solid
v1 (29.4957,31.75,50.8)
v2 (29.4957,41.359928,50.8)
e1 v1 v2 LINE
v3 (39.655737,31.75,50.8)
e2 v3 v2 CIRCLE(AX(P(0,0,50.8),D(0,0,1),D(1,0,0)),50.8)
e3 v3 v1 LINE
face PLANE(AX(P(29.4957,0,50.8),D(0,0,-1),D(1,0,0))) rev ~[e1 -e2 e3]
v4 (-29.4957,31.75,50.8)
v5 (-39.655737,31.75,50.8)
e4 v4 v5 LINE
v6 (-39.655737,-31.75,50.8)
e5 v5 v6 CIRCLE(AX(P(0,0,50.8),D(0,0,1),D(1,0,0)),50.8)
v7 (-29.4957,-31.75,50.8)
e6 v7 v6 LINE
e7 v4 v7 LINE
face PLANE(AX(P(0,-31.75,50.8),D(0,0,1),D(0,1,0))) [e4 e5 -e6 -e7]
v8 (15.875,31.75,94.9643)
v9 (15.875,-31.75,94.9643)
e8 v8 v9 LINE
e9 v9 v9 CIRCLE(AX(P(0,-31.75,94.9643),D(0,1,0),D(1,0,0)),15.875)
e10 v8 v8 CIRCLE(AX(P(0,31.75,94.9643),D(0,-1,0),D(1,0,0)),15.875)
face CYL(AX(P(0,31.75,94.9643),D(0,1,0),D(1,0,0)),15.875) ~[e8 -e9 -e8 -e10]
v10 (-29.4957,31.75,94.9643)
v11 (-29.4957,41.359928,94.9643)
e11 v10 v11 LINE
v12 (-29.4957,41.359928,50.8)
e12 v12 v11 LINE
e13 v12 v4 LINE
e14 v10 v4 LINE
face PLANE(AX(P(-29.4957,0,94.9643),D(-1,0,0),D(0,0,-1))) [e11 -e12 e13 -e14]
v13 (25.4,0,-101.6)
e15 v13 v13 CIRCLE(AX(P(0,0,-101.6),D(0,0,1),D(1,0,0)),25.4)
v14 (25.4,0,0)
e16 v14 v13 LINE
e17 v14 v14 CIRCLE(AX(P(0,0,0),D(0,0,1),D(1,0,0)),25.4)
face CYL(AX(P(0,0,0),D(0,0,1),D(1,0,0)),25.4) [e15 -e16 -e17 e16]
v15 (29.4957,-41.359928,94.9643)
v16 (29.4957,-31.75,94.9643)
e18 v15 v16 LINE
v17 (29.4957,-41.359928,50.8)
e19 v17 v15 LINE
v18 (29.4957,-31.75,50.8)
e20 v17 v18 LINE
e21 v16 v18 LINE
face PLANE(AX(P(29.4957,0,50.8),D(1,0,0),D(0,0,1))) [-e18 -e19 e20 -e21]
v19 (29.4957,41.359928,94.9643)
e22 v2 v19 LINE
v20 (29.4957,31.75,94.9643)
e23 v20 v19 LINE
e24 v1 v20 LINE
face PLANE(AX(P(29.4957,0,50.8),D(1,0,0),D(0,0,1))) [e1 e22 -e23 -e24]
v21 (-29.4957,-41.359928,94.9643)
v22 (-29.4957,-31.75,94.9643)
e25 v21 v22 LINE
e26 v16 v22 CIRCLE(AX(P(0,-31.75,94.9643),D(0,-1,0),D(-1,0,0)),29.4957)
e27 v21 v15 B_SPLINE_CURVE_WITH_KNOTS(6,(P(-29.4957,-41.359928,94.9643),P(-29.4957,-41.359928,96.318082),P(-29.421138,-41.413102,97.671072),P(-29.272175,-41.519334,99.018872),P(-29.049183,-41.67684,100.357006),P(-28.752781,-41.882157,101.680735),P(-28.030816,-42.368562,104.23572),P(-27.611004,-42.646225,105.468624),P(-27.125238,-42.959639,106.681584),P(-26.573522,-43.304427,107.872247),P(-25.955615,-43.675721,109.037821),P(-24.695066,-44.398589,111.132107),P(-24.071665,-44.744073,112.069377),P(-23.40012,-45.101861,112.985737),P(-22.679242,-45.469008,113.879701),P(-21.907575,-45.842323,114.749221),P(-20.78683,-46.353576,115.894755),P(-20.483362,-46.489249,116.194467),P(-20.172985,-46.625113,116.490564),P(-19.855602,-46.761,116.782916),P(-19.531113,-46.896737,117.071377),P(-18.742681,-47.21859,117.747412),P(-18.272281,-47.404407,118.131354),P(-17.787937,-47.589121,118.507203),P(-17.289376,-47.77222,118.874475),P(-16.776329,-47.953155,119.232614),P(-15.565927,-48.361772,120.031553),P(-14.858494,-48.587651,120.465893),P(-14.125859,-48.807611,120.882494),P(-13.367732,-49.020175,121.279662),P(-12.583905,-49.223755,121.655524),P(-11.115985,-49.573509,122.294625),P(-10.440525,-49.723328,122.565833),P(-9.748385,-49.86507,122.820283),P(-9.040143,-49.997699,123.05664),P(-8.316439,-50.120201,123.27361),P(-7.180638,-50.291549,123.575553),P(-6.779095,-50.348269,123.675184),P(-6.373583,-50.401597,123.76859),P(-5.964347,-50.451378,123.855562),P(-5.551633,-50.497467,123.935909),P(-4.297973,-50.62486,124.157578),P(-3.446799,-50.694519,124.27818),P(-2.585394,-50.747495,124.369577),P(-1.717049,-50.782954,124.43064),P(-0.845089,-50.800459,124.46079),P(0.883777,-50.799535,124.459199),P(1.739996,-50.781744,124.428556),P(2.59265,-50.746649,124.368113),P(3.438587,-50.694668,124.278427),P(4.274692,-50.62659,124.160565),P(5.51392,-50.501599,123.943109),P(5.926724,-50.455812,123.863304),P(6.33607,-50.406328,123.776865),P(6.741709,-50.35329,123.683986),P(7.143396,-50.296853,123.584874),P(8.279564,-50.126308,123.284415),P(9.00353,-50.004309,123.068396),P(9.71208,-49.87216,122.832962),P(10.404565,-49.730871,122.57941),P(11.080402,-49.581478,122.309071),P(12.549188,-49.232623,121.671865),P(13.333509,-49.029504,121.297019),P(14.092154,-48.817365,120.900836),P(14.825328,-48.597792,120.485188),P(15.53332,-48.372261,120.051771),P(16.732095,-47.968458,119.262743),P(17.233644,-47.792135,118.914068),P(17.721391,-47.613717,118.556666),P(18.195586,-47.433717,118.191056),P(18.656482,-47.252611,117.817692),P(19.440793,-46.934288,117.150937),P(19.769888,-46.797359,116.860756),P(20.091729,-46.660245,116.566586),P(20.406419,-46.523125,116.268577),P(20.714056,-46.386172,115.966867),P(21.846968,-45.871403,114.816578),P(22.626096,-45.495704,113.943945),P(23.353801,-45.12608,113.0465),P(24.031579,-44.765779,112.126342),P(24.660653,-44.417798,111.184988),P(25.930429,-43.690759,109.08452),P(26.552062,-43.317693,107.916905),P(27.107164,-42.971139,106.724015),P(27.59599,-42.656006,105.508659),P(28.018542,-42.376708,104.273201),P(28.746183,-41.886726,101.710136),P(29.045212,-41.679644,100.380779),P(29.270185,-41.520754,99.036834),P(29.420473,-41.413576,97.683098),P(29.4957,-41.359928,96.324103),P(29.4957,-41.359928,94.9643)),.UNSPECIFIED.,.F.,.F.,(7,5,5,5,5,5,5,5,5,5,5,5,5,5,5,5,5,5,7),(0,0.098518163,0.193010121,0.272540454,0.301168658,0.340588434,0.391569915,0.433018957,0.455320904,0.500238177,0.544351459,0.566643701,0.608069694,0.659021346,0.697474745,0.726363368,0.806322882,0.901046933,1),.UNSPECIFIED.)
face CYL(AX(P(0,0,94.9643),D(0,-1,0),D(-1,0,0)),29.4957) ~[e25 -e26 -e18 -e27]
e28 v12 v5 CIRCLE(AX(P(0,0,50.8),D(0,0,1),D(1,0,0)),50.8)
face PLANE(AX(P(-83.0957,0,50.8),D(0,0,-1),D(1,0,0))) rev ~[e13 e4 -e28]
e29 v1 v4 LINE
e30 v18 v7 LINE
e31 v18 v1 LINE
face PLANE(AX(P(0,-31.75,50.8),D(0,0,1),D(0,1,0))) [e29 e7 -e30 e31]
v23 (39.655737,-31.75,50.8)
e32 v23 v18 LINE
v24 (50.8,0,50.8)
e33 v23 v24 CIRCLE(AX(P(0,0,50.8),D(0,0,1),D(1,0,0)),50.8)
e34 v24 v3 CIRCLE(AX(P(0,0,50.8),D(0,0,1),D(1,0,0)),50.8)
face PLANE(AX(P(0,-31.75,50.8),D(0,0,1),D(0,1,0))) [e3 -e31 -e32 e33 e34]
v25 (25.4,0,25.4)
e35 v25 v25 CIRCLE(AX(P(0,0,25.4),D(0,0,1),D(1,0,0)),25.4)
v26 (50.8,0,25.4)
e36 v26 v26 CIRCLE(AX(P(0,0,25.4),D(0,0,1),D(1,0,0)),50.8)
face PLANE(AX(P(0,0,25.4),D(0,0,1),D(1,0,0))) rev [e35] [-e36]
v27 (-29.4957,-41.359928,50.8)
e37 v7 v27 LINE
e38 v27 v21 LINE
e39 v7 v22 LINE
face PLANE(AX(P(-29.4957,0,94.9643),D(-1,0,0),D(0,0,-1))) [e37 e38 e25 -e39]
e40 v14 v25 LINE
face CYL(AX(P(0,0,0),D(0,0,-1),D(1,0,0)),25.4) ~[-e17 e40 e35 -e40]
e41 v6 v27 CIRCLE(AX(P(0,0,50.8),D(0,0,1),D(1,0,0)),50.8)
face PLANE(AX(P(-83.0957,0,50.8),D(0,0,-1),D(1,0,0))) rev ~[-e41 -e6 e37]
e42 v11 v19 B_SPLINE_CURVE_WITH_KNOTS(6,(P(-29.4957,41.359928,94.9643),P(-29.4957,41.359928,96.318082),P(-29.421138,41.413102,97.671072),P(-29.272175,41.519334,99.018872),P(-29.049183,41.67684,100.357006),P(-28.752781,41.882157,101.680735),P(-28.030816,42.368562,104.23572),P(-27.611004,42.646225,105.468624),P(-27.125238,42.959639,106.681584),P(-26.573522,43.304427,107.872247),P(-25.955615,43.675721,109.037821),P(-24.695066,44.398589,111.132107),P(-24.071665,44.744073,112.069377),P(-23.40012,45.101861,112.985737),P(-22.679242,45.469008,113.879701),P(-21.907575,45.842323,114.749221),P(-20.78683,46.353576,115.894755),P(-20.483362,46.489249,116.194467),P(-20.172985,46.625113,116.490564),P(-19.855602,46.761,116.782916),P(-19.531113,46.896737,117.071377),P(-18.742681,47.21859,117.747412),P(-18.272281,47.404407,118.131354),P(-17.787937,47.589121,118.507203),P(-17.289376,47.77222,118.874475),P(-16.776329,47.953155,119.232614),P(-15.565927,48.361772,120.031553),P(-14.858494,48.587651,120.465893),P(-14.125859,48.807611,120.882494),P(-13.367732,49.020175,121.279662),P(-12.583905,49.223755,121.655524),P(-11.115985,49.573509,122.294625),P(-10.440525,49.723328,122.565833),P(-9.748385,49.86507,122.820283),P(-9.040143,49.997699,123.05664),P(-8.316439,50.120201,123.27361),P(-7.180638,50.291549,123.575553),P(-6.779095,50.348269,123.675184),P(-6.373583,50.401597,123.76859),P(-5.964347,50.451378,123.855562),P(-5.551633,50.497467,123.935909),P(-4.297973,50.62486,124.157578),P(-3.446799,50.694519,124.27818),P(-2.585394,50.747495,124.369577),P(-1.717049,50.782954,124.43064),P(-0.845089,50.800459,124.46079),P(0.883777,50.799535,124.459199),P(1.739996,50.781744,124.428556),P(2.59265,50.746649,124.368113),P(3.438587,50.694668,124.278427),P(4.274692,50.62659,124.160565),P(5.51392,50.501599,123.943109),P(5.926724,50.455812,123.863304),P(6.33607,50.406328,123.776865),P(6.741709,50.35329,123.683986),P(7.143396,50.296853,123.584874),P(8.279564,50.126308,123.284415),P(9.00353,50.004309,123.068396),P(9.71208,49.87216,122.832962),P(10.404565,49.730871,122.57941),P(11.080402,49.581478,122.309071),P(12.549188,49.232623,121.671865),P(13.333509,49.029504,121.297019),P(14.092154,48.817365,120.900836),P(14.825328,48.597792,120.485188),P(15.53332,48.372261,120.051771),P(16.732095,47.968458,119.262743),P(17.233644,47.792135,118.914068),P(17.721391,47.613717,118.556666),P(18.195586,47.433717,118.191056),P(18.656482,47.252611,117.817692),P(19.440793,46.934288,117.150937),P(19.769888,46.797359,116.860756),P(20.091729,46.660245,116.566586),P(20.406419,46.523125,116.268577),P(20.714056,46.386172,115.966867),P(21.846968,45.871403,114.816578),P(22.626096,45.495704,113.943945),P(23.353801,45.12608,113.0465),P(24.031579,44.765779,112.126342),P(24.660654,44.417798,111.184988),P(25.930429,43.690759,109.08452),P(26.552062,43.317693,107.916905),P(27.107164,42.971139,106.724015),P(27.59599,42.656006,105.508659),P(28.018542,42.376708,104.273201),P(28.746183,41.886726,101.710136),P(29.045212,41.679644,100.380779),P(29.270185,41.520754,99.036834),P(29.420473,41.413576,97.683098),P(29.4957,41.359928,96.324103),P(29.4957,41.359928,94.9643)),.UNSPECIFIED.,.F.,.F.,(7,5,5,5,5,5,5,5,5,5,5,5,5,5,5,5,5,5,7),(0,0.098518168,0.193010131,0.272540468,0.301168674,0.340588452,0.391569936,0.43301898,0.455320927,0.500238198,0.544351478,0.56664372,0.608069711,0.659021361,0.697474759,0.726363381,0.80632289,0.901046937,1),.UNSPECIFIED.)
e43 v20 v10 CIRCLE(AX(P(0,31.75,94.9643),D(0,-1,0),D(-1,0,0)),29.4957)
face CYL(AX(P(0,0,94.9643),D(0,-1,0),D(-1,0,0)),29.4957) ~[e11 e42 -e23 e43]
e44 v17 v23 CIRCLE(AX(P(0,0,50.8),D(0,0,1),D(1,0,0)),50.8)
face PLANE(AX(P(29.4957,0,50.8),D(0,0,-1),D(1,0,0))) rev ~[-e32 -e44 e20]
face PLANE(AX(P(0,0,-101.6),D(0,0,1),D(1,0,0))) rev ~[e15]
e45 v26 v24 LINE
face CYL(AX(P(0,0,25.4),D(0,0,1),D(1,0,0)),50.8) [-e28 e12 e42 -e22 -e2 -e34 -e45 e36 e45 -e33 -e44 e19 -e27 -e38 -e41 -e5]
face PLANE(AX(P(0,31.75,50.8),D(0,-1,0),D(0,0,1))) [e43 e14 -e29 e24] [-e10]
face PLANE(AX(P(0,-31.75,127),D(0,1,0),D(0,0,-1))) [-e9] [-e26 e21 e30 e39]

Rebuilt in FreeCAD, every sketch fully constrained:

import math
import FreeCAD as App
import Part
import Sketcher
Q = App.Units.Quantity


def add_polygon(sketch, points):
    """Adds a closed chain of lines whose ends are joined by coincident constraints."""
    first, n = sketch.GeometryCount, len(points)
    for a, b in zip(points, points[1:] + points[:1]):
        sketch.addGeometry(Part.LineSegment(App.Vector(*a, 0), App.Vector(*b, 0)), False)
    for i in range(n):
        sketch.addConstraint(Sketcher.Constraint("Coincident", first + i, 2, first + (i + 1) % n, 1))

doc = App.newDocument("Part")
body = doc.addObject("PartDesign::Body", "Body")

# Sketch on XY plane
sketch1 = doc.addObject("Sketcher::SketchObject", "Sketch")
body.addObject(sketch1)
sketch1.AttachmentSupport = (doc.XY_Plane, [""])
sketch1.MapMode = "FlatFace"
sketch1.addGeometry(Part.Circle(App.Vector(0, 0, 0), App.Vector(0, 0, 1), 25.4), False)
sketch1.addConstraint(Sketcher.Constraint("Coincident", 0, 3, -1, 1))
sketch1.addConstraint(Sketcher.Constraint("Diameter", 0, Q("2 in")))
pad1 = doc.addObject("PartDesign::Pad", "Pad")
body.addObject(pad1)
pad1.Profile = sketch1
pad1.Type = "TwoLengths"
pad1.Length = Q("1 in")
pad1.Length2 = Q("4 in")

# Sketch on XZ plane
sketch2 = doc.addObject("Sketcher::SketchObject", "Sketch001")
body.addObject(sketch2)
sketch2.AttachmentSupport = (doc.XZ_Plane, [""])
sketch2.MapMode = "FlatFace"
add_polygon(sketch2, [(50.8, 25.4), (0, 25.4), (0, 127), (50.8, 127)])  # lines 0-3
sketch2.addConstraint(Sketcher.Constraint("Horizontal", 0))
sketch2.addConstraint(Sketcher.Constraint("Vertical", 1))
sketch2.addConstraint(Sketcher.Constraint("Horizontal", 2))
sketch2.addConstraint(Sketcher.Constraint("Vertical", 3))
sketch2.addConstraint(Sketcher.Constraint("PointOnObject", 0, 2, -2))
sketch2.addConstraint(Sketcher.Constraint("DistanceX", 0, 2, 0, 1, Q("2 in")))
sketch2.addConstraint(Sketcher.Constraint("DistanceY", 1, 1, 1, 2, Q("4 in")))
sketch2.addConstraint(Sketcher.Constraint("DistanceY", -1, 1, 0, 2, Q("1 in")))
revolution = doc.addObject("PartDesign::Revolution", "Revolution")
body.addObject(revolution)
revolution.Profile = sketch2
revolution.ReferenceAxis = (sketch2, ["V_Axis"])
revolution.Angle = 360

# Sketch on YZ plane
sketch3 = doc.addObject("Sketcher::SketchObject", "Sketch002")
body.addObject(sketch3)
sketch3.AttachmentSupport = (doc.YZ_Plane, [""])
sketch3.MapMode = "FlatFace"
add_polygon(sketch3, [(31.75, 50.8), (31.75, 127), (-31.75, 127), (-31.75, 50.8)])  # lines 0-3
sketch3.addConstraint(Sketcher.Constraint("Vertical", 0))
sketch3.addConstraint(Sketcher.Constraint("Horizontal", 1))
sketch3.addConstraint(Sketcher.Constraint("Vertical", 2))
sketch3.addConstraint(Sketcher.Constraint("Horizontal", 3))
sketch3.addConstraint(Sketcher.Constraint("DistanceY", 0, 1, 0, 2, Q("3 in")))
sketch3.addConstraint(Sketcher.Constraint("DistanceX", 1, 2, 1, 1, Q("2.5 in")))
sketch3.addConstraint(Sketcher.Constraint("DistanceY", -1, 1, 0, 2, Q("5 in")))
sketch3.addConstraint(Sketcher.Constraint("DistanceX", -1, 1, 0, 2, Q("1.25 in")))
pocket1 = doc.addObject("PartDesign::Pocket", "Pocket")
body.addObject(pocket1)
pocket1.Profile = sketch3
pocket1.Length = Q("10 in")
pocket1.Midplane = True

# Sketch on XZ plane
sketch4 = doc.addObject("Sketcher::SketchObject", "Sketch003")
body.addObject(sketch4)
sketch4.AttachmentSupport = (doc.XZ_Plane, [""])
sketch4.MapMode = "FlatFace"
sketch4.addGeometry(Part.LineSegment(App.Vector(112.68, 50.8, 0), App.Vector(29.4957, 50.8, 0)), False)
sketch4.addGeometry(Part.LineSegment(App.Vector(29.4957, 50.8, 0), App.Vector(29.4957, 94.9643, 0)), False)
sketch4.addGeometry(Part.ArcOfCircle(Part.Circle(App.Vector(0, 94.9643, 0), App.Vector(0, 0, 1), 29.4957), math.radians(0), math.radians(180)), False)
sketch4.addGeometry(Part.LineSegment(App.Vector(-29.4957, 94.9643, 0), App.Vector(-29.4957, 50.8, 0)), False)
sketch4.addGeometry(Part.LineSegment(App.Vector(-29.4957, 50.8, 0), App.Vector(-83.0957, 50.8, 0)), False)
sketch4.addGeometry(Part.LineSegment(App.Vector(-83.0957, 50.8, 0), App.Vector(-83.0957, 137.8838, 0)), False)
sketch4.addGeometry(Part.LineSegment(App.Vector(-83.0957, 137.8838, 0), App.Vector(112.68, 137.8838, 0)), False)
sketch4.addGeometry(Part.LineSegment(App.Vector(112.68, 137.8838, 0), App.Vector(112.68, 50.8, 0)), False)
sketch4.addConstraint(Sketcher.Constraint("Coincident", 0, 2, 1, 1))
sketch4.addConstraint(Sketcher.Constraint("Tangent", 1, 2, 2, 1))
sketch4.addConstraint(Sketcher.Constraint("Tangent", 2, 2, 3, 1))
sketch4.addConstraint(Sketcher.Constraint("Coincident", 3, 2, 4, 1))
sketch4.addConstraint(Sketcher.Constraint("Coincident", 4, 2, 5, 1))
sketch4.addConstraint(Sketcher.Constraint("Coincident", 5, 2, 6, 1))
sketch4.addConstraint(Sketcher.Constraint("Coincident", 6, 2, 7, 1))
sketch4.addConstraint(Sketcher.Constraint("Coincident", 7, 2, 0, 1))
sketch4.addConstraint(Sketcher.Constraint("Horizontal", 0))
sketch4.addConstraint(Sketcher.Constraint("Vertical", 1))
sketch4.addConstraint(Sketcher.Constraint("Vertical", 3))
sketch4.addConstraint(Sketcher.Constraint("Horizontal", 4))
sketch4.addConstraint(Sketcher.Constraint("Vertical", 5))
sketch4.addConstraint(Sketcher.Constraint("Horizontal", 6))
sketch4.addConstraint(Sketcher.Constraint("Vertical", 7))
sketch4.addConstraint(Sketcher.Constraint("Symmetric", 0, 2, 3, 2, -2))
sketch4.addConstraint(Sketcher.Constraint("DistanceY", -1, 1, 0, 2, Q("2 in")))
sketch4.addConstraint(Sketcher.Constraint("Radius", 2, Q("29.4957 mm")))
sketch4.addConstraint(Sketcher.Constraint("DistanceX", 6, 1, 6, 2, Q("7.7077 in")))
sketch4.addConstraint(Sketcher.Constraint("DistanceY", 5, 1, 5, 2, Q("3.4285 in")))
sketch4.addConstraint(Sketcher.Constraint("DistanceX", 0, 2, 0, 1, Q("83.1843 mm")))
sketch4.addConstraint(Sketcher.Constraint("DistanceY", 1, 1, 1, 2, Q("44.1643 mm")))
pocket2 = doc.addObject("PartDesign::Pocket", "Pocket001")
body.addObject(pocket2)
pocket2.Profile = sketch4
pocket2.Length = Q("10 in")
pocket2.Midplane = True

# Sketch on XZ plane
sketch5 = doc.addObject("Sketcher::SketchObject", "Sketch004")
body.addObject(sketch5)
sketch5.AttachmentSupport = (doc.XZ_Plane, [""])
sketch5.MapMode = "FlatFace"
sketch5.AttachmentOffset = App.Placement(App.Vector(0, 0, -1.25 * 25.4), App.Rotation())
sketch5.addGeometry(Part.Circle(App.Vector(0, 94.9643, 0), App.Vector(0, 0, 1), 15.875), False)
sketch5.addConstraint(Sketcher.Constraint("PointOnObject", 0, 3, -2))
sketch5.addConstraint(Sketcher.Constraint("Diameter", 0, Q("1.25 in")))
sketch5.addConstraint(Sketcher.Constraint("DistanceY", -1, 1, 0, 3, Q("94.9643 mm")))
pad2 = doc.addObject("PartDesign::Pad", "Pad001")
body.addObject(pad2)
pad2.Profile = sketch5
pad2.Type = "UpToFirst"

doc.recompute()
